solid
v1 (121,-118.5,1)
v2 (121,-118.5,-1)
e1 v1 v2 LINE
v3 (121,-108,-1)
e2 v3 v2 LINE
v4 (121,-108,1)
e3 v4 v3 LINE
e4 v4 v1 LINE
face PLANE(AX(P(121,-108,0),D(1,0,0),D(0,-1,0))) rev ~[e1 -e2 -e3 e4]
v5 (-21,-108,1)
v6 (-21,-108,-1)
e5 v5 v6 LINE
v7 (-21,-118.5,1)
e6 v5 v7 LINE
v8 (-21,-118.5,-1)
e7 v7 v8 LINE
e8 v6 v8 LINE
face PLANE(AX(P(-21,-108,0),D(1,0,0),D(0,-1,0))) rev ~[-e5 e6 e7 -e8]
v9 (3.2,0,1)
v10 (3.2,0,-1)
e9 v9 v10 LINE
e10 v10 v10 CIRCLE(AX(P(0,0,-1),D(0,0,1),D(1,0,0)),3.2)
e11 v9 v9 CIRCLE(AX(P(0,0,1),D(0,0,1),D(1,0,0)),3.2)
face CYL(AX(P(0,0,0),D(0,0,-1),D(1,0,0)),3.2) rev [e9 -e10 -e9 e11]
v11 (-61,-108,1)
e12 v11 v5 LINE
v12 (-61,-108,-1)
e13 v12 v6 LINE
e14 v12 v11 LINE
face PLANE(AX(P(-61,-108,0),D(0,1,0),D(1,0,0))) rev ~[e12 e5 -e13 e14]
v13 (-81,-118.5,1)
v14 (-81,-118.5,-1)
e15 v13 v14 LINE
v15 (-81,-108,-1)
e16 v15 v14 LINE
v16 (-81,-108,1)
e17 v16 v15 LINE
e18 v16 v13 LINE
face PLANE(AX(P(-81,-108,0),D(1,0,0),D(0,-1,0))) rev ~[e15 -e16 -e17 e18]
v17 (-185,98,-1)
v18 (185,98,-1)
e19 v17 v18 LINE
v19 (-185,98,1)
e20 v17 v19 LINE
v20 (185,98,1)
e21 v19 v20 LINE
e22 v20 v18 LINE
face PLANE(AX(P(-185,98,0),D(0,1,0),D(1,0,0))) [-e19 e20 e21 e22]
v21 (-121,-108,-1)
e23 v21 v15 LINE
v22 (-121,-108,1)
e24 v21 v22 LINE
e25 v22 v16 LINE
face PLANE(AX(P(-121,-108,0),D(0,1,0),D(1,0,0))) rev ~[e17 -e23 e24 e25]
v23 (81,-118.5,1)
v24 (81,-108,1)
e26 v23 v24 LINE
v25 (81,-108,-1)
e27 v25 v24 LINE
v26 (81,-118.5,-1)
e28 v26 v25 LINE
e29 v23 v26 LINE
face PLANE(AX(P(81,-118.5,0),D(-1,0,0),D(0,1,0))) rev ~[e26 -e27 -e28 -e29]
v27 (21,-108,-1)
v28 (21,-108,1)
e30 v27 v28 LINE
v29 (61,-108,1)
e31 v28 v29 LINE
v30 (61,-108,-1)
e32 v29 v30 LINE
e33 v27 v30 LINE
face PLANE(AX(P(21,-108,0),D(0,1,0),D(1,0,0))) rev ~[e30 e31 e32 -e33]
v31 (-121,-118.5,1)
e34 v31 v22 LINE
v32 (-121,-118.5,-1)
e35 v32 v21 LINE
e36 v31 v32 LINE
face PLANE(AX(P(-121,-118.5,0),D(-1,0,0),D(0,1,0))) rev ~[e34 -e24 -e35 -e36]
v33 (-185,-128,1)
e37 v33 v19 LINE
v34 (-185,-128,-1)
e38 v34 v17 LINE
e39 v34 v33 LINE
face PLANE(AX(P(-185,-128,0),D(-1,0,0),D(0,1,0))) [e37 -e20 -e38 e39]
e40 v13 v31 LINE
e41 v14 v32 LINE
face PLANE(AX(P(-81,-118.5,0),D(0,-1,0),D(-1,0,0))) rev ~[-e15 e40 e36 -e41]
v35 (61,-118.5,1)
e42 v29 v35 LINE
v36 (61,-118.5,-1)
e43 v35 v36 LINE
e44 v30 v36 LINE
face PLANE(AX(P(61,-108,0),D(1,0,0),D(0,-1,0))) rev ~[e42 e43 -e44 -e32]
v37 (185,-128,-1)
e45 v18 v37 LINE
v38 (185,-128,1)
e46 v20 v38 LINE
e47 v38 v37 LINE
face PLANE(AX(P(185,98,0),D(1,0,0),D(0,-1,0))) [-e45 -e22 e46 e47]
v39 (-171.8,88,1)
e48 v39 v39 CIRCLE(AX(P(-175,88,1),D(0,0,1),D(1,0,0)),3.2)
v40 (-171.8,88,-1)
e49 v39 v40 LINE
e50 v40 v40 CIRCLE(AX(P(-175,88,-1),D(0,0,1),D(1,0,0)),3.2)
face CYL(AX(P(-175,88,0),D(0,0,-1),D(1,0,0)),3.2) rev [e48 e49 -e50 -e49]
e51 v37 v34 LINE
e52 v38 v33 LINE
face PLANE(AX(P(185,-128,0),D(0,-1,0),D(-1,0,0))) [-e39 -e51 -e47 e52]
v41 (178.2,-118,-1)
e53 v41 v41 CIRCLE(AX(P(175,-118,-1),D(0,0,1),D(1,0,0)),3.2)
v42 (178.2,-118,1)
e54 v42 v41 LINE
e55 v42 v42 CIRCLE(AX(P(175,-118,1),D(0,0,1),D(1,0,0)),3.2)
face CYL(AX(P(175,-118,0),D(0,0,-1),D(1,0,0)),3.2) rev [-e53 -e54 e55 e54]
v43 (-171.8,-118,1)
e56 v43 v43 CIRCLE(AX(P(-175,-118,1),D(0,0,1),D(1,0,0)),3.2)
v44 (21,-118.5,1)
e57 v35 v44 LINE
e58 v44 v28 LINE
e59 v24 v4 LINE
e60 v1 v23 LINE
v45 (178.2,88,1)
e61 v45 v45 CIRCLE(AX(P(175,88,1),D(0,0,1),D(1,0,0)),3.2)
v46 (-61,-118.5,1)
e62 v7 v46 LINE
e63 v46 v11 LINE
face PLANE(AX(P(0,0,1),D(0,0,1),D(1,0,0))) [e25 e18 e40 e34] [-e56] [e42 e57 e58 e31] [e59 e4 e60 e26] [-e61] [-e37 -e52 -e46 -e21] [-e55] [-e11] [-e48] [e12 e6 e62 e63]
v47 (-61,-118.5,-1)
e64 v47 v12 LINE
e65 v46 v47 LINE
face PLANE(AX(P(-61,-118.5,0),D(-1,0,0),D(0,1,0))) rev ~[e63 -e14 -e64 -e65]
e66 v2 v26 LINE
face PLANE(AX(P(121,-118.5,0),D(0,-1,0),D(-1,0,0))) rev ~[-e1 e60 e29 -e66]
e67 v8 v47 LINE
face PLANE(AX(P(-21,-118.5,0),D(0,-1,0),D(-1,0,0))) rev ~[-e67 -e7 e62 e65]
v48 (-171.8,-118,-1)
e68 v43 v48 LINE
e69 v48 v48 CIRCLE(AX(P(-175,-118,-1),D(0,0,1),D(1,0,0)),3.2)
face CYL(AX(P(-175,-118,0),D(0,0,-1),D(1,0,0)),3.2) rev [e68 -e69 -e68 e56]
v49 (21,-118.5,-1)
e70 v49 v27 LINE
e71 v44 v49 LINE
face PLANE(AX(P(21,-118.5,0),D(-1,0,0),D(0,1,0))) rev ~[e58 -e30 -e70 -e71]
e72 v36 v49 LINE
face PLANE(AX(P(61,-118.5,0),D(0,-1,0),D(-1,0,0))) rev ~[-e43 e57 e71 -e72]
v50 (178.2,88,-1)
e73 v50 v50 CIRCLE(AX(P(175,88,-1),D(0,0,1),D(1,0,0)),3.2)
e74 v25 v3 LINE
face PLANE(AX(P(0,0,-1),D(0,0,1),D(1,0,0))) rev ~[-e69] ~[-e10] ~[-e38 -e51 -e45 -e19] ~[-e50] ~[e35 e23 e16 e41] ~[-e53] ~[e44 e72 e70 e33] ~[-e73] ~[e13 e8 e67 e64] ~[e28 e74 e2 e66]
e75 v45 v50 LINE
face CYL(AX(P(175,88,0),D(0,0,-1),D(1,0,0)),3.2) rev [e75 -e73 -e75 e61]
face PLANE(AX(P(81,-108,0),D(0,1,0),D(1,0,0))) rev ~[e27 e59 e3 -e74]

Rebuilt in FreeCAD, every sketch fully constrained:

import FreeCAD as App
import Part
import Sketcher


def add_polygon(sketch, points):
    """Adds a closed chain of lines whose ends are joined by coincident constraints."""
    first, n = sketch.GeometryCount, len(points)
    for a, b in zip(points, points[1:] + points[:1]):
        sketch.addGeometry(Part.LineSegment(App.Vector(*a, 0), App.Vector(*b, 0)), False)
    for i in range(n):
        sketch.addConstraint(Sketcher.Constraint("Coincident", first + i, 2, first + (i + 1) % n, 1))

doc = App.newDocument("Part")
body = doc.addObject("PartDesign::Body", "Body")

sketch1 = body.newObject("Sketcher::SketchObject", "Sketch")
sketch1.AttachmentSupport = (doc.getObject("XY_Plane"), [""])
sketch1.MapMode = "FlatFace"
add_polygon(sketch1, [(185, 98), (-185, 98), (-185, -128), (185, -128)])
sketch1.addGeometry(Part.Circle(App.Vector(-175, -118, 0), App.Vector(0, 0, 1), 3.2), False)
add_polygon(sketch1, [(-121, -118.5), (-121, -108), (-81, -108), (-81, -118.5)])
add_polygon(sketch1, [(-61, -118.5), (-61, -108), (-21, -108), (-21, -118.5)])
add_polygon(sketch1, [(21, -118.5), (21, -108), (61, -108), (61, -118.5)])
add_polygon(sketch1, [(81, -118.5), (81, -108), (121, -108), (121, -118.5)])
sketch1.addGeometry(Part.Circle(App.Vector(175, -118, 0), App.Vector(0, 0, 1), 3.2), False)
sketch1.addGeometry(Part.Circle(App.Vector(-175, 88, 0), App.Vector(0, 0, 1), 3.2), False)
sketch1.addGeometry(Part.Circle(App.Vector(0, 0, 0), App.Vector(0, 0, 1), 3.2), False)
sketch1.addGeometry(Part.Circle(App.Vector(175, 88, 0), App.Vector(0, 0, 1), 3.2), False)
sketch1.addConstraint([
    Sketcher.Constraint("Horizontal", 0),
    Sketcher.Constraint("Vertical", 1),
    Sketcher.Constraint("Horizontal", 2),
    Sketcher.Constraint("Vertical", 3),
    Sketcher.Constraint("Vertical", 5),
    Sketcher.Constraint("Horizontal", 6),
    Sketcher.Constraint("Vertical", 7),
    Sketcher.Constraint("Horizontal", 8),
    Sketcher.Constraint("Vertical", 9),
    Sketcher.Constraint("Horizontal", 10),
    Sketcher.Constraint("Vertical", 11),
    Sketcher.Constraint("Horizontal", 12),
    Sketcher.Constraint("Vertical", 13),
    Sketcher.Constraint("Horizontal", 14),
    Sketcher.Constraint("Vertical", 15),
    Sketcher.Constraint("Horizontal", 16),
    Sketcher.Constraint("Vertical", 17),
    Sketcher.Constraint("Horizontal", 18),
    Sketcher.Constraint("Vertical", 19),
    Sketcher.Constraint("Horizontal", 20),
    Sketcher.Constraint("Coincident", 23, 3, -1, 1),
    Sketcher.Constraint("Equal", 4, 21),
    Sketcher.Constraint("Equal", 21, 22),
    Sketcher.Constraint("Equal", 22, 23),
    Sketcher.Constraint("Equal", 23, 24),
    Sketcher.Constraint("Symmetric", 4, 3, 21, 3, -2),
    Sketcher.Constraint("Symmetric", 22, 3, 24, 3, -2),
    Sketcher.Constraint("Symmetric", 10, 2, 13, 2, -2),
    Sketcher.Constraint("Symmetric", 12, 2, 15, 2, -2),
    Sketcher.Constraint("Symmetric", 6, 2, 17, 2, -2),
    Sketcher.Constraint("Symmetric", 8, 2, 19, 2, -2),
    Sketcher.Constraint("Horizontal", 6, 2, 9, 2),
    Sketcher.Constraint("Horizontal", 8, 2, 11, 2),
    Sketcher.Constraint("Vertical", 4, 3, 22, 3),
    Sketcher.Constraint("Equal", 8, 10),
    Sketcher.Constraint("Diameter", 4, 6.4),
    Sketcher.Constraint("DistanceX", 0, 2, 0, 1, 370.0),
    Sketcher.Constraint("DistanceX", 6, 1, 6, 2, 40.0),
    Sketcher.Constraint("DistanceY", 1, 2, 1, 1, 226.0),
    Sketcher.Constraint("DistanceY", 5, 1, 5, 2, 10.5),
    Sketcher.Constraint("DistanceX", 4, 3, -1, 1, 175.0),
    Sketcher.Constraint("DistanceY", 4, 3, -1, 1, 118.0),
    Sketcher.Constraint("DistanceY", -1, 1, 22, 3, 88.0),
    Sketcher.Constraint("DistanceX", 0, 2, -1, 1, 185.0),
    Sketcher.Constraint("DistanceY", -1, 1, 0, 2, 98.0),
    Sketcher.Constraint("DistanceX", 5, 2, -1, 1, 121.0),
    Sketcher.Constraint("DistanceY", 5, 2, -1, 1, 108.0),
    Sketcher.Constraint("DistanceX", 9, 2, -1, 1, 61.0),
])
pad1 = body.newObject("PartDesign::Pad", "Pad")
pad1.Profile = sketch1
pad1.Length = 2
pad1.Midplane = True

doc.recompute()
